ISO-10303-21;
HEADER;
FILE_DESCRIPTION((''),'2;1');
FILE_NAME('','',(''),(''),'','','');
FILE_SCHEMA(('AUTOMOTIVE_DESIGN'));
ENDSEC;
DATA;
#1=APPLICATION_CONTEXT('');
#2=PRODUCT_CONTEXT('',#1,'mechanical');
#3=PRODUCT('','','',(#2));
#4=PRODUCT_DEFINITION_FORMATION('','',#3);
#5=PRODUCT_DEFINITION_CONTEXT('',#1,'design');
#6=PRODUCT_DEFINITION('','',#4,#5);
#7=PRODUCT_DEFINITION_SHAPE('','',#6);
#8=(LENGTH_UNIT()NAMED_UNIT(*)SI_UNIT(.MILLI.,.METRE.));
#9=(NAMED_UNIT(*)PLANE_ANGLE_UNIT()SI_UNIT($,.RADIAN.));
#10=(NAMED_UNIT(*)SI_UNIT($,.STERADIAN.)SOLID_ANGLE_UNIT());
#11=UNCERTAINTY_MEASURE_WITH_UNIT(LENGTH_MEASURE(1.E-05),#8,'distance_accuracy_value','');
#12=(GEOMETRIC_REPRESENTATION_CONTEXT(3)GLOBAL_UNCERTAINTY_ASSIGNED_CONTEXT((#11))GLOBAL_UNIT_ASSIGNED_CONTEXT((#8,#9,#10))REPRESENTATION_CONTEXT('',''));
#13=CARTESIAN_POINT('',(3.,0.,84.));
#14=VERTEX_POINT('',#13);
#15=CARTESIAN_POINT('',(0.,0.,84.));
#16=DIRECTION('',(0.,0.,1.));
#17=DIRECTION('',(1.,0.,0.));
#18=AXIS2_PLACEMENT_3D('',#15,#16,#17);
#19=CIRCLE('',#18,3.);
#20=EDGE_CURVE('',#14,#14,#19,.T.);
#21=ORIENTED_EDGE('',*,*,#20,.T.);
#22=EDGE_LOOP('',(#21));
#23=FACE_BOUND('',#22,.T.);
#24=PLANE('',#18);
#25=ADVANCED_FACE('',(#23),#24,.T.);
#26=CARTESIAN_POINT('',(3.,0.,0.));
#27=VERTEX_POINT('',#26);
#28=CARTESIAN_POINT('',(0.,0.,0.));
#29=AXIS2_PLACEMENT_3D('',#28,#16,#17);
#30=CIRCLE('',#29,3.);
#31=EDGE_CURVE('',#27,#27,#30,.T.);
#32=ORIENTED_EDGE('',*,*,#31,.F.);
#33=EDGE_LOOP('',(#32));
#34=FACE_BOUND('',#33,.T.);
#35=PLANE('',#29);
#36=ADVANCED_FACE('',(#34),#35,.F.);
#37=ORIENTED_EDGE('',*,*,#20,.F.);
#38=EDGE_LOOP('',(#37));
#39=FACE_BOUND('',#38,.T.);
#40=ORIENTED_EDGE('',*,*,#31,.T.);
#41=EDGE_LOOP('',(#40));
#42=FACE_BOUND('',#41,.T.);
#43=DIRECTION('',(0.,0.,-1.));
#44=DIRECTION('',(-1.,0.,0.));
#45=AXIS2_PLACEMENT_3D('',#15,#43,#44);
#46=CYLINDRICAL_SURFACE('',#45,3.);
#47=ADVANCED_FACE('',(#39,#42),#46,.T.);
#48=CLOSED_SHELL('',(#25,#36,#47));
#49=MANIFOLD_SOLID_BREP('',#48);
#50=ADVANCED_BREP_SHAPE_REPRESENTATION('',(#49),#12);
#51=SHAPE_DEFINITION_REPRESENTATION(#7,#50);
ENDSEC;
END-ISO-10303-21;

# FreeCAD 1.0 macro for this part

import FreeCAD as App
import Part
import Sketcher

doc = App.newDocument("Part")
body = doc.addObject("PartDesign::Body", "Body")

# Sketch on XY plane
sketch1 = doc.addObject("Sketcher::SketchObject", "Sketch")
body.addObject(sketch1)
sketch1.AttachmentSupport = (doc.XY_Plane, [""])
sketch1.MapMode = "FlatFace"
sketch1.addGeometry(Part.Circle(App.Vector(0, 0, 0), App.Vector(0, 0, 1), 3), False)
sketch1.addConstraint([
    Sketcher.Constraint("Coincident", 0, 3, -1, 1),
    Sketcher.Constraint("Diameter", 0, 6.0),
])
pad1 = doc.addObject("PartDesign::Pad", "Pad")
body.addObject(pad1)
pad1.Profile = sketch1
pad1.Length = 84

doc.recompute()
